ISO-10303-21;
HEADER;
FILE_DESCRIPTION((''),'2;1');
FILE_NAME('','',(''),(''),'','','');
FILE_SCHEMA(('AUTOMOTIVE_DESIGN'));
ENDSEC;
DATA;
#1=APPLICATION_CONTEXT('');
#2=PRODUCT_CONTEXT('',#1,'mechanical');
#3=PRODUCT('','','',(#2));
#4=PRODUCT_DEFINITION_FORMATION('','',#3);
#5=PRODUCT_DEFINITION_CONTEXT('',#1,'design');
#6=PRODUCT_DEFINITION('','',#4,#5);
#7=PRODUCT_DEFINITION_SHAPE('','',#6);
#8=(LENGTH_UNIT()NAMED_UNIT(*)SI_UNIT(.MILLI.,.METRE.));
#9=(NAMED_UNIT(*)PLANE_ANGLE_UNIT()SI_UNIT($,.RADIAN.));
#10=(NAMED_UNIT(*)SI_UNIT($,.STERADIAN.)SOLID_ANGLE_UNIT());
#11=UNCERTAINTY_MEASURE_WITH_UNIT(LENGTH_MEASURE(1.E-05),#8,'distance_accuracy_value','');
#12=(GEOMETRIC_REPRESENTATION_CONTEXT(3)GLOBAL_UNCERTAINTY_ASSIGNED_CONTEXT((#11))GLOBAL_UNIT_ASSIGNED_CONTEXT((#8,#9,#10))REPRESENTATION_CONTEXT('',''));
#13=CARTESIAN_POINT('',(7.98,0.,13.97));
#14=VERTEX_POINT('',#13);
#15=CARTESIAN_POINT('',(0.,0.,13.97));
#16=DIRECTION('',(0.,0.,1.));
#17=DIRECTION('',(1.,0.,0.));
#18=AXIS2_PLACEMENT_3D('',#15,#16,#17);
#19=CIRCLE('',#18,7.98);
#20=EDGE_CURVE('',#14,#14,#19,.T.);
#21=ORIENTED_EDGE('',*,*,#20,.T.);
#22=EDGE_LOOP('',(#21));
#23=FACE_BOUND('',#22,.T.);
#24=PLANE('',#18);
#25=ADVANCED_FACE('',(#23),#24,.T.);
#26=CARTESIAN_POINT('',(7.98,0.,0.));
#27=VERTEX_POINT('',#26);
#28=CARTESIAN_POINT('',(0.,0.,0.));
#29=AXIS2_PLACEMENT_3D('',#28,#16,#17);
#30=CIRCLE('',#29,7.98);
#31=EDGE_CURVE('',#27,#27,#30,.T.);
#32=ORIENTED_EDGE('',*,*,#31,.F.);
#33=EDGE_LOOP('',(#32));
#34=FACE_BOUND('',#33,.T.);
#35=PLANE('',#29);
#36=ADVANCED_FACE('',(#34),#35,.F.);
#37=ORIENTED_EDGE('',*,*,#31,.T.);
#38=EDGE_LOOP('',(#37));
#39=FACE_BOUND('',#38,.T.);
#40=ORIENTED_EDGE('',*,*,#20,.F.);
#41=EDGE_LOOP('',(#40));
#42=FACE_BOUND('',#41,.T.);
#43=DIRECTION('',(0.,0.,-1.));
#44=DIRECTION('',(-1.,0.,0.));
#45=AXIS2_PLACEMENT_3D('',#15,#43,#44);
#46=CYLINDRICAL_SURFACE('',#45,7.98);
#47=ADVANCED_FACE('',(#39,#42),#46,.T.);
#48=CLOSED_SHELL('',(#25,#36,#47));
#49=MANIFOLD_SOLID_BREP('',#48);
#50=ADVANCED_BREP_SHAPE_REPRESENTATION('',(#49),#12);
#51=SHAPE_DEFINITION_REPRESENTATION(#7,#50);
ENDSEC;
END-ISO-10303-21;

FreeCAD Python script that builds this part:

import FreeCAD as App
import Part
import Sketcher

V = App.Vector
Q = App.Units.Quantity

doc = App.newDocument("Part")
body = doc.addObject("PartDesign::Body", "Body")

# Sketch on XY plane
sketch1 = doc.addObject("Sketcher::SketchObject", "Sketch")
body.addObject(sketch1)
sketch1.AttachmentSupport = (doc.XY_Plane, [""])
sketch1.MapMode = "FlatFace"
sketch1.addGeometry(Part.Circle(V(0, 0, 0), V(0, 0, 1), 8), False)
sketch1.addConstraint([
    Sketcher.Constraint("Coincident", 0, 3, -1, 1),
    Sketcher.Constraint("Diameter", 0, 15.96),
])
pad1 = doc.addObject("PartDesign::Pad", "Pad")
body.addObject(pad1)
pad1.Profile = sketch1
pad1.Length = Q("0.55 in")

doc.recompute()
